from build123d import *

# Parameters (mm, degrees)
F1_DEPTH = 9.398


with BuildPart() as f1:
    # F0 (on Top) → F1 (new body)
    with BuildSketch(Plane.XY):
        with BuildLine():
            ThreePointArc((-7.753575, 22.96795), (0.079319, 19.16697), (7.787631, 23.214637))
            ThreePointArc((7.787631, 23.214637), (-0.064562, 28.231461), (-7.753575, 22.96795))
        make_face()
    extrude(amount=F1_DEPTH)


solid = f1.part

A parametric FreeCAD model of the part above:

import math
import FreeCAD as App
import Part
import Sketcher

V = App.Vector
Q = App.Units.Quantity

doc = App.newDocument("Part")
body = doc.addObject("PartDesign::Body", "Body")

# Sketch on XY plane
sketch1 = body.newObject("Sketcher::SketchObject", "Sketch")
sketch1.AttachmentSupport = (doc.getObject("XY_Plane"), [""])
sketch1.MapMode = "FlatFace"
sketch1.addGeometry([
    Part.ArcOfCircle(Part.Circle(V(0, 29, 0), V(0, 0, 1), 10), math.radians(-143), math.radians(-36)),
    Part.ArcOfCircle(Part.Circle(V(0, 20, 0), V(0, 0, 1), 8), math.radians(24), math.radians(158)),
], False)
sketch1.addConstraint([
    Sketcher.Constraint("Coincident", 0, 1, 1, 2),
    Sketcher.Constraint("Coincident", 1, 1, 0, 2),
    Sketcher.Constraint("Radius", 0, 9.656713),
    Sketcher.Constraint("Radius", 1, 8.444718),
    Sketcher.Constraint("DistanceY", -1, 1, 0, 1, 22.96795),
    Sketcher.Constraint("DistanceX", -1, 1, 1, 1, 7.787631),
    Sketcher.Constraint("DistanceY", 1, 3, 0, 3, 9.03466),
    Sketcher.Constraint("DistanceX", 0, 1, 1, 3, 7.82304),
])
pad1 = body.newObject("PartDesign::Pad", "Pad")
pad1.Profile = sketch1
pad1.Length = Q("0.37 in")

doc.recompute()
